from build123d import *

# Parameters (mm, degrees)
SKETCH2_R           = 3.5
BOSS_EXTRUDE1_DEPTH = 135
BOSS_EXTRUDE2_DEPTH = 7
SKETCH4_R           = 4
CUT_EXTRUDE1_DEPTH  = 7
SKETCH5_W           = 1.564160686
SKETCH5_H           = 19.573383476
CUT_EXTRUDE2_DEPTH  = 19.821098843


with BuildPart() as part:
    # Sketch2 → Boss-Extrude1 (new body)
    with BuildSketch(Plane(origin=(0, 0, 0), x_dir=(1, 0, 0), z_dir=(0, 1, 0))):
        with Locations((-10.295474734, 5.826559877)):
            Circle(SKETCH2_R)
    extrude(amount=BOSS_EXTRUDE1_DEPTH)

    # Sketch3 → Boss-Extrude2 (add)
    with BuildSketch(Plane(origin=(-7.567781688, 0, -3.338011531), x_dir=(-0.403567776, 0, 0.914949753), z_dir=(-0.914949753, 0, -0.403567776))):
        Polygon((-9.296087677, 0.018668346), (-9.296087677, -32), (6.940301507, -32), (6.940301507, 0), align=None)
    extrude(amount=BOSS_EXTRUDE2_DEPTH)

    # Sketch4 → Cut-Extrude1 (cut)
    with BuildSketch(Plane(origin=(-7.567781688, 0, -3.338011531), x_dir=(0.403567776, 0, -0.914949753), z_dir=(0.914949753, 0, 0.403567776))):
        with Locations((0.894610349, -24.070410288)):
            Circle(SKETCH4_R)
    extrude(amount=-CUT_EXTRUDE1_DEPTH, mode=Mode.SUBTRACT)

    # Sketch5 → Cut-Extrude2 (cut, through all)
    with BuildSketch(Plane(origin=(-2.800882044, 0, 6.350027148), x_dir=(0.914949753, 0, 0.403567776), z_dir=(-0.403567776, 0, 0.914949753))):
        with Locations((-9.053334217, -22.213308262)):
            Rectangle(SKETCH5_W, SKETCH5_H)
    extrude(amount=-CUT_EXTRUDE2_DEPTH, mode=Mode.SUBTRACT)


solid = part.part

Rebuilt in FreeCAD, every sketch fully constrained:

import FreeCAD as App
import Part
import Sketcher
from FreeCAD import Vector
Q = App.Units.Quantity


def add_polygon(sketch, points):
    """Adds a closed chain of lines whose ends are joined by coincident constraints."""
    first, n = sketch.GeometryCount, len(points)
    for a, b in zip(points, points[1:] + points[:1]):
        sketch.addGeometry(Part.LineSegment(App.Vector(*a, 0), App.Vector(*b, 0)), False)
    for i in range(n):
        sketch.addConstraint(Sketcher.Constraint("Coincident", first + i, 2, first + (i + 1) % n, 1))

doc = App.newDocument("Part")
body = doc.addObject("PartDesign::Body", "Body")

sketch1 = body.newObject("Sketcher::SketchObject", "Sketch")
sketch1.AttachmentSupport = (doc.getObject("XZ_Plane"), [""])
sketch1.MapMode = "FlatFace"
sketch1.addGeometry(Part.Circle(Vector(-10.295475, -5.82656, 0), Vector(0, 0, 1), 3.5), False)
sketch1.addConstraint([
    Sketcher.Constraint("Diameter", 0, Q("7 mm")),
    Sketcher.Constraint("DistanceY", 0, 3, -1, 1, Q("5.82656 mm")),
    Sketcher.Constraint("DistanceX", 0, 3, -1, 1, Q("10.295475 mm")),
])
pad1 = body.newObject("PartDesign::Pad", "Pad")
pad1.Profile = sketch1
pad1.Length = 135
pad1.Reversed = True

sketch2 = body.newObject("Sketcher::SketchObject", "Sketch001")
sketch2.Placement = App.Placement(Vector(-7.567782, 0, -3.338012), App.Rotation(Vector(-0.403567776, 0, 0.914949753), Vector(0, 1, 0), Vector(-0.914949753, 0, -0.403567776), "ZXY"))
add_polygon(sketch2, [(-9.296088, 0.018668), (-9.296088, -32), (6.940302, -32), (6.940302, 0)])
sketch2.addConstraint([
    Sketcher.Constraint("Vertical", 0),
    Sketcher.Constraint("Horizontal", 1),
    Sketcher.Constraint("Vertical", 2),
    Sketcher.Constraint("PointOnObject", 2, 2, -1),
    Sketcher.Constraint("DistanceY", 2, 1, 2, 2, Q("32 mm")),
    Sketcher.Constraint("Distance", 3, Q("16.2364 mm")),
    Sketcher.Constraint("DistanceY", 0, 2, 0, 1, Q("32.018668 mm")),
    Sketcher.Constraint("DistanceX", -1, 1, 1, 2, Q("6.940302 mm")),
])
pad2 = body.newObject("PartDesign::Pad", "Pad001")
pad2.Profile = sketch2
pad2.Length = 7

sketch3 = body.newObject("Sketcher::SketchObject", "Sketch002")
sketch3.Placement = App.Placement(Vector(-7.567782, 0, -3.338012), App.Rotation(Vector(0.403567776, 0, -0.914949753), Vector(0, 1, 0), Vector(0.914949753, 0, 0.403567776), "ZXY"))
sketch3.addGeometry(Part.Circle(Vector(0.89461, -24.07041, 0), Vector(0, 0, 1), 4), False)
sketch3.addConstraint([
    Sketcher.Constraint("Diameter", 0, Q("8 mm")),
    Sketcher.Constraint("DistanceX", -1, 1, 0, 3, Q("0.89461 mm")),
    Sketcher.Constraint("DistanceY", 0, 3, -1, 1, Q("24.07041 mm")),
])
pocket1 = body.newObject("PartDesign::Pocket", "Pocket")
pocket1.Profile = sketch3
pocket1.Length = 7

sketch4 = body.newObject("Sketcher::SketchObject", "Sketch003")
sketch4.Placement = App.Placement(Vector(-2.800882, 0, 6.350027), App.Rotation(Vector(0.914949753, 0, 0.403567776), Vector(0, 1, 0), Vector(-0.403567776, 0, 0.914949753), "ZXY"))
add_polygon(sketch4, [(-9.835415, -12.426617), (-9.835415, -32), (-8.271254, -32), (-8.271254, -12.426617)])
sketch4.addConstraint([
    Sketcher.Constraint("Vertical", 0),
    Sketcher.Constraint("Horizontal", 1),
    Sketcher.Constraint("Vertical", 2),
    Sketcher.Constraint("Horizontal", 3),
    Sketcher.Constraint("DistanceY", 0, 2, -1, 1, Q("32 mm")),
    Sketcher.Constraint("DistanceX", 1, 1, 1, 2, Q("1.564161 mm")),
    Sketcher.Constraint("DistanceY", 0, 2, 0, 1, Q("19.573383 mm")),
    Sketcher.Constraint("DistanceX", 0, 2, -1, 1, Q("9.835415 mm")),
])
pocket2 = body.newObject("PartDesign::Pocket", "Pocket001")
pocket2.Profile = sketch4
pocket2.Type = "ThroughAll"

doc.recompute()
